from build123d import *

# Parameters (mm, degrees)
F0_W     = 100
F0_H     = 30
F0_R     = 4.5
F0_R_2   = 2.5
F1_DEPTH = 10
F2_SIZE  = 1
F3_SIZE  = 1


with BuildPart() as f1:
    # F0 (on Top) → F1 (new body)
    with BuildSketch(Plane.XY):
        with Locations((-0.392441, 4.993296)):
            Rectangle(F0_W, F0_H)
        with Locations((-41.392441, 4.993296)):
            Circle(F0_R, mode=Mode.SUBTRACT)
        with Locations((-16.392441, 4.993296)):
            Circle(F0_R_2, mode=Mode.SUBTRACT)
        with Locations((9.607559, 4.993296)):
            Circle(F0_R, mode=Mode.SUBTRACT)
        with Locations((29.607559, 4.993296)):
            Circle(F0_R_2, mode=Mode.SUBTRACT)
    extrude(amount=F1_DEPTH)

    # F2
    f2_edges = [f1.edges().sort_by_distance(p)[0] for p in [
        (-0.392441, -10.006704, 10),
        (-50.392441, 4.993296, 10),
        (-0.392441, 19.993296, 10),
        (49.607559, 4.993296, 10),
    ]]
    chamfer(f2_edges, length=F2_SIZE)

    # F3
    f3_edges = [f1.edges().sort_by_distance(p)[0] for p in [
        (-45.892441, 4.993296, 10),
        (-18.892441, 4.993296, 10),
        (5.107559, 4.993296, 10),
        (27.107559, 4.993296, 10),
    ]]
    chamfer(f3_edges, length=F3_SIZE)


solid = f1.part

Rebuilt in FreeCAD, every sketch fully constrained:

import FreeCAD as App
import Part
import Sketcher

V = App.Vector


def edges_at(feature, points):
    """Names of the edges that pass closest to the given points."""
    edges = feature.Shape.Edges
    near = lambda p: min(range(len(edges)), key=lambda i: edges[i].distToShape(Part.Vertex(*p))[0])
    return sorted({f"Edge{near(p) + 1}" for p in points})

doc = App.newDocument("Part")
body = doc.addObject("PartDesign::Body", "Body")

sketch1 = doc.addObject("Sketcher::SketchObject", "Sketch")
body.addObject(sketch1)
sketch1.AttachmentSupport = (doc.XY_Plane, [""])
sketch1.MapMode = "FlatFace"
sketch1.addGeometry(Part.LineSegment(V(-50.4, 20, 0), V(-50.4, -10, 0)), False)
sketch1.addGeometry(Part.LineSegment(V(-50.4, -10, 0), V(49.6, -10, 0)), False)
sketch1.addGeometry(Part.LineSegment(V(49.6, -10, 0), V(49.6, 20, 0)), False)
sketch1.addGeometry(Part.LineSegment(V(49.6, 20, 0), V(-50.4, 20, 0)), False)
sketch1.addGeometry(Part.Circle(V(-41.4, 5, 0), V(0, 0, 1), 4.5), False)
sketch1.addGeometry(Part.Circle(V(-16.4, 5, 0), V(0, 0, 1), 2.5), False)
sketch1.addGeometry(Part.Circle(V(9.6, 5, 0), V(0, 0, 1), 4.5), False)
sketch1.addGeometry(Part.Circle(V(29.6, 5, 0), V(0, 0, 1), 2.5), False)
sketch1.addConstraint(Sketcher.Constraint("Coincident", 0, 2, 1, 1))
sketch1.addConstraint(Sketcher.Constraint("Coincident", 1, 2, 2, 1))
sketch1.addConstraint(Sketcher.Constraint("Coincident", 2, 2, 3, 1))
sketch1.addConstraint(Sketcher.Constraint("Coincident", 3, 2, 0, 1))
sketch1.addConstraint(Sketcher.Constraint("Vertical", 0))
sketch1.addConstraint(Sketcher.Constraint("Horizontal", 1))
sketch1.addConstraint(Sketcher.Constraint("Vertical", 2))
sketch1.addConstraint(Sketcher.Constraint("Horizontal", 3))
sketch1.addConstraint(Sketcher.Constraint("Equal", 4, 6))
sketch1.addConstraint(Sketcher.Constraint("Equal", 5, 7))
sketch1.addConstraint(Sketcher.Constraint("Horizontal", 4, 3, 5, 3))
sketch1.addConstraint(Sketcher.Constraint("Horizontal", 5, 3, 6, 3))
sketch1.addConstraint(Sketcher.Constraint("Horizontal", 6, 3, 7, 3))
sketch1.addConstraint(Sketcher.Constraint("Diameter", 4, 9.0))
sketch1.addConstraint(Sketcher.Constraint("Diameter", 5, 5.0))
sketch1.addConstraint(Sketcher.Constraint("DistanceX", 1, 1, 1, 2, 100.0))
sketch1.addConstraint(Sketcher.Constraint("DistanceY", 0, 2, 0, 1, 30.0))
sketch1.addConstraint(Sketcher.Constraint("DistanceX", 4, 3, 5, 3, 25.0))
sketch1.addConstraint(Sketcher.Constraint("DistanceX", 5, 3, 6, 3, 26.0))
sketch1.addConstraint(Sketcher.Constraint("DistanceX", 6, 3, 7, 3, 20.0))
sketch1.addConstraint(Sketcher.Constraint("DistanceX", 0, 2, 4, 3, 9.0))
sketch1.addConstraint(Sketcher.Constraint("DistanceY", 0, 2, 4, 3, 15.0))
sketch1.addConstraint(Sketcher.Constraint("DistanceX", 4, 3, -1, 1, 41.392441))
sketch1.addConstraint(Sketcher.Constraint("DistanceY", -1, 1, 4, 3, 4.993296))
pad1 = doc.addObject("PartDesign::Pad", "Pad")
body.addObject(pad1)
pad1.Profile = sketch1
pad1.Length = 10
doc.recompute()

chamfer = doc.addObject("PartDesign::Chamfer", "Chamfer")
body.addObject(chamfer)
chamfer.Base = (pad1, edges_at(pad1, [
    (-0.392, -10.007, 10),
    (-50.392, 4.993, 10),
    (-0.392, 19.993, 10),
    (49.608, 4.993, 10),
]))
chamfer.Size = 1
doc.recompute()

chamfer2 = doc.addObject("PartDesign::Chamfer", "Chamfer001")
body.addObject(chamfer2)
chamfer2.Base = (chamfer, edges_at(chamfer, [
    (-45.892, 4.993, 10),
    (-18.892, 4.993, 10),
    (5.108, 4.993, 10),
    (27.108, 4.993, 10),
]))
chamfer2.Size = 1

doc.recompute()
